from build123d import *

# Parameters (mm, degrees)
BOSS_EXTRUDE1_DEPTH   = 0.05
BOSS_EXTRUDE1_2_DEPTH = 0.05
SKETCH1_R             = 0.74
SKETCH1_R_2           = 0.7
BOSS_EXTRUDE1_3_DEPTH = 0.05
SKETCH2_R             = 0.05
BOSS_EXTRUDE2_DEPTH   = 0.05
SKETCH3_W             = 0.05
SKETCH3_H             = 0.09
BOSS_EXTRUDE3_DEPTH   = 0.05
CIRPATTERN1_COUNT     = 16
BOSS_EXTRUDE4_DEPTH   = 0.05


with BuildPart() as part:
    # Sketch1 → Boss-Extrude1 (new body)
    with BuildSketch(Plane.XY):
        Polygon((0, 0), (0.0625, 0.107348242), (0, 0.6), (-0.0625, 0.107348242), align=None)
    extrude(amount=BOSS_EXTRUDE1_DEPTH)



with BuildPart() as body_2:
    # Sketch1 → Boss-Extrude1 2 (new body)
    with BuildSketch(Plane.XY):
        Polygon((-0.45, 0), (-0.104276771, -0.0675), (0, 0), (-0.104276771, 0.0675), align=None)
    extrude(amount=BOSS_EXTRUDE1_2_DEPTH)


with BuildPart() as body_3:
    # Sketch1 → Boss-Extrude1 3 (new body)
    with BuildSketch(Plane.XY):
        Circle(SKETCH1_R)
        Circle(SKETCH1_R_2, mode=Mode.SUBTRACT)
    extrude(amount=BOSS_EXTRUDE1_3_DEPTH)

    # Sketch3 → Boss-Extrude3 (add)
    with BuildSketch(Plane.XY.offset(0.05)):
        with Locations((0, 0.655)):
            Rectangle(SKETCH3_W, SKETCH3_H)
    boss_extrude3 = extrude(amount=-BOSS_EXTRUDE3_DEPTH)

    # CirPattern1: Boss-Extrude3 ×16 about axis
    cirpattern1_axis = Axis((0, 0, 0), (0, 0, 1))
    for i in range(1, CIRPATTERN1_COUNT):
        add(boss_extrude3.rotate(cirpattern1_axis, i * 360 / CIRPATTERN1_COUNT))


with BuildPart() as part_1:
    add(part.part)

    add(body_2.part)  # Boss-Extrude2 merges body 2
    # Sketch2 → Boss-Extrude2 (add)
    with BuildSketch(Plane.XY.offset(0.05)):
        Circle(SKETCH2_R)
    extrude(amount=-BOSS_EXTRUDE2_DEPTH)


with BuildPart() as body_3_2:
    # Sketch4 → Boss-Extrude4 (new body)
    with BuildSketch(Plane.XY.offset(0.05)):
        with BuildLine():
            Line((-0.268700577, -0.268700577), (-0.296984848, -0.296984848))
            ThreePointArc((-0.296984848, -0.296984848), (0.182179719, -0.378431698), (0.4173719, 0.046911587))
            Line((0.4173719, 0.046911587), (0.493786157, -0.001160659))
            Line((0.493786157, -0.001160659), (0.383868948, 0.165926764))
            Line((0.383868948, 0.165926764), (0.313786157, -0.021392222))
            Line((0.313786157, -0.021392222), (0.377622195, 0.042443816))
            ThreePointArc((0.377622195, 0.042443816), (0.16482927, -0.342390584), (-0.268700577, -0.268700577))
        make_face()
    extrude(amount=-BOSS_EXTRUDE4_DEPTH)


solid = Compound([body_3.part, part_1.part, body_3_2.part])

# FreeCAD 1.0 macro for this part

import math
import FreeCAD as App
import Part
import Sketcher
from FreeCAD import Vector
Q = App.Units.Quantity


def add_polygon(sketch, points):
    """Adds a closed chain of lines whose ends are joined by coincident constraints."""
    first, n = sketch.GeometryCount, len(points)
    for a, b in zip(points, points[1:] + points[:1]):
        sketch.addGeometry(Part.LineSegment(App.Vector(*a, 0), App.Vector(*b, 0)), False)
    for i in range(n):
        sketch.addConstraint(Sketcher.Constraint("Coincident", first + i, 2, first + (i + 1) % n, 1))

doc = App.newDocument("Part")
body = doc.addObject("PartDesign::Body", "Body")

# Sketch on XY plane
sketch1 = body.newObject("Sketcher::SketchObject", "Sketch")
sketch1.AttachmentSupport = (doc.getObject("XY_Plane"), [""])
sketch1.MapMode = "FlatFace"
add_polygon(sketch1, [(0, 0), (0.06, 0.11), (0, 0.6), (-0.06, 0.11)])  # lines 0-3
sketch1.addConstraint([
    Sketcher.Constraint("Coincident", 3, 2, -1, 1),
    Sketcher.Constraint("Symmetric", 0, 2, 2, 2, -2),
    Sketcher.Constraint("PointOnObject", 1, 2, -2),
    Sketcher.Constraint("DistanceY", -1, 1, 1, 2, Q("0.6 mm")),
    Sketcher.Constraint("DistanceX", 2, 2, 0, 2, Q("0.125 mm")),
    Sketcher.Constraint("Distance", 1, Q("0.4966 mm")),
])
pad1 = body.newObject("PartDesign::Pad", "Pad")
pad1.Profile = sketch1
pad1.Length = 0.05
body2 = doc.addObject("PartDesign::Body", "Body001")

# Sketch on XY plane
sketch2 = body2.newObject("Sketcher::SketchObject", "Sketch001")
sketch2.AttachmentSupport = (doc.getObject("XY_Plane001"), [""])
sketch2.MapMode = "FlatFace"
add_polygon(sketch2, [(-0.45, 0), (-0.1, -0.07), (0, 0), (-0.1, 0.07)])  # lines 0-3
sketch2.addConstraint([
    Sketcher.Constraint("Coincident", 1, 2, -1, 1),
    Sketcher.Constraint("Symmetric", 0, 2, 2, 2, -1),
    Sketcher.Constraint("PointOnObject", 3, 2, -1),
    Sketcher.Constraint("DistanceX", 3, 2, -1, 1, Q("0.45 mm")),
    Sketcher.Constraint("DistanceY", 0, 2, 2, 2, Q("0.135 mm")),
    Sketcher.Constraint("Distance", 0, Q("0.352251 mm")),
])
pad2 = body2.newObject("PartDesign::Pad", "Pad001")
pad2.Profile = sketch2
pad2.Length = 0.05
body3 = doc.addObject("PartDesign::Body", "Body002")

# Sketch on XY plane
sketch3 = body3.newObject("Sketcher::SketchObject", "Sketch002")
sketch3.AttachmentSupport = (doc.getObject("XY_Plane002"), [""])
sketch3.MapMode = "FlatFace"
sketch3.addGeometry([
    Part.Circle(Vector(0, 0, 0), Vector(0, 0, 1), 0.7),
    Part.Circle(Vector(0, 0, 0), Vector(0, 0, 1), 0.7),
], False)
sketch3.addConstraint([
    Sketcher.Constraint("Coincident", 0, 3, -1, 1),
    Sketcher.Constraint("Coincident", 1, 3, -1, 1),
    Sketcher.Constraint("Diameter", 1, Q("1.4 mm")),
    Sketcher.Constraint("Diameter", 0, Q("1.48 mm")),
])
pad3 = body3.newObject("PartDesign::Pad", "Pad002")
pad3.Profile = sketch3
pad3.Length = 0.05

# Sketch on XY plane
sketch4 = body3.newObject("Sketcher::SketchObject", "Sketch003")
sketch4.AttachmentSupport = (doc.getObject("XY_Plane002"), [""])
sketch4.MapMode = "FlatFace"
sketch4.AttachmentOffset = App.Placement(Vector(0, 0, 0.05), App.Rotation())
add_polygon(sketch4, [(-0.03, 0.7), (-0.03, 0.61), (0.03, 0.61), (0.03, 0.7)])  # lines 0-3
sketch4.addConstraint([
    Sketcher.Constraint("Vertical", 0),
    Sketcher.Constraint("Horizontal", 1),
    Sketcher.Constraint("Vertical", 2),
    Sketcher.Constraint("Horizontal", 3),
    Sketcher.Constraint("DistanceX", 1, 1, 1, 2, Q("0.05 mm")),
    Sketcher.Constraint("DistanceY", 0, 2, 0, 1, Q("0.09 mm")),
    Sketcher.Constraint("DistanceY", -1, 1, 2, 2, Q("0.7 mm")),
    Sketcher.Constraint("DistanceX", 0, 2, -1, 1, Q("0.025 mm")),
])
pad4 = body3.newObject("PartDesign::Pad", "Pad003")
pad4.Profile = sketch4
pad4.Length = 0.05
pad4.Reversed = True
doc.recompute()

polarpattern = body3.newObject("PartDesign::PolarPattern", "PolarPattern")
polarpattern.Originals = [pad4]
polarpattern.Axis = (doc.getObject("Z_Axis002"), [""])
polarpattern.Angle = 360
polarpattern.Occurrences = 16
body3.Tip = polarpattern
body.AllowCompound = True
doc.recompute()

boolean = body.newObject("PartDesign::Boolean", "Boolean")
boolean.Type = "Fuse"
boolean.addObjects([body2])

# Sketch on XY plane
sketch5 = body.newObject("Sketcher::SketchObject", "Sketch004")
sketch5.AttachmentSupport = (doc.getObject("XY_Plane"), [""])
sketch5.MapMode = "FlatFace"
sketch5.AttachmentOffset = App.Placement(Vector(0, 0, 0.05), App.Rotation())
sketch5.addGeometry(Part.Circle(Vector(0, 0, 0), Vector(0, 0, 1), 0.05), False)
sketch5.addConstraint([
    Sketcher.Constraint("Coincident", 0, 3, -1, 1),
    Sketcher.Constraint("Diameter", 0, Q("0.1 mm")),
])
pad5 = body.newObject("PartDesign::Pad", "Pad004")
pad5.Profile = sketch5
pad5.Length = 0.05
pad5.Reversed = True
body4 = doc.addObject("PartDesign::Body", "Body003")

# Sketch on XY plane
sketch6 = body4.newObject("Sketcher::SketchObject", "Sketch005")
sketch6.AttachmentSupport = (doc.getObject("XY_Plane003"), [""])
sketch6.MapMode = "FlatFace"
sketch6.AttachmentOffset = App.Placement(Vector(0, 0, 0.05), App.Rotation())
sketch6.addGeometry([
    Part.LineSegment(Vector(-0.269, -0.269, 0), Vector(-0.297, -0.297, 0)),  # 0
    Part.ArcOfCircle(Part.Circle(Vector(0, 0, 0), Vector(0, 0, 1), 0.42), math.radians(-135), math.radians(6)),  # 1
    Part.LineSegment(Vector(0.417, 0.047, 0), Vector(0.494, -0.001, 0)),  # 2
    Part.LineSegment(Vector(0.494, -0.001, 0), Vector(0.384, 0.166, 0)),  # 3
    Part.LineSegment(Vector(0.384, 0.166, 0), Vector(0.314, -0.021, 0)),  # 4
    Part.LineSegment(Vector(0.314, -0.021, 0), Vector(0.378, 0.042, 0)),  # 5
    Part.ArcOfCircle(Part.Circle(Vector(0, 0, 0), Vector(0, 0, 1), 0.38), math.radians(-135), math.radians(6)),  # 6
], False)
sketch6.addConstraint([
    Sketcher.Constraint("Coincident", 0, 2, 1, 1),
    Sketcher.Constraint("Coincident", 1, 2, 2, 1),
    Sketcher.Constraint("Coincident", 2, 2, 3, 1),
    Sketcher.Constraint("Coincident", 3, 2, 4, 1),
    Sketcher.Constraint("Coincident", 4, 2, 5, 1),
    Sketcher.Constraint("Coincident", 5, 2, 6, 2),
    Sketcher.Constraint("Coincident", 6, 1, 0, 1),
    Sketcher.Constraint("Coincident", 1, 3, -1, 1),
    Sketcher.Constraint("Coincident", 6, 3, -1, 1),
    Sketcher.Constraint("Parallel", 0, 5),
    Sketcher.Constraint("Equal", 3, 4),
    Sketcher.Constraint("Equal", 2, 5),
    Sketcher.Constraint("Angle", 0, Q("-135 deg")),
    Sketcher.Constraint("Radius", 1, Q("0.42 mm")),
    Sketcher.Constraint("Radius", 6, Q("0.38 mm")),
    Sketcher.Constraint("Distance", 3, Q("0.2 mm")),
    Sketcher.Constraint("DistanceX", 4, 2, 2, 2, Q("0.18 mm")),
    Sketcher.Constraint("DistanceX", 6, 1, -1, 1, Q("0.268701 mm")),
    Sketcher.Constraint("DistanceX", -1, 1, 1, 2, Q("0.417372 mm")),
    Sketcher.Constraint("DistanceY", 2, 2, -1, 1, Q("0.001161 mm")),
    Sketcher.Constraint("DistanceX", -1, 1, 3, 2, Q("0.383869 mm")),
])
pad6 = body4.newObject("PartDesign::Pad", "Pad005")
pad6.Profile = sketch6
pad6.Length = 0.05
pad6.Reversed = True

doc.recompute()
